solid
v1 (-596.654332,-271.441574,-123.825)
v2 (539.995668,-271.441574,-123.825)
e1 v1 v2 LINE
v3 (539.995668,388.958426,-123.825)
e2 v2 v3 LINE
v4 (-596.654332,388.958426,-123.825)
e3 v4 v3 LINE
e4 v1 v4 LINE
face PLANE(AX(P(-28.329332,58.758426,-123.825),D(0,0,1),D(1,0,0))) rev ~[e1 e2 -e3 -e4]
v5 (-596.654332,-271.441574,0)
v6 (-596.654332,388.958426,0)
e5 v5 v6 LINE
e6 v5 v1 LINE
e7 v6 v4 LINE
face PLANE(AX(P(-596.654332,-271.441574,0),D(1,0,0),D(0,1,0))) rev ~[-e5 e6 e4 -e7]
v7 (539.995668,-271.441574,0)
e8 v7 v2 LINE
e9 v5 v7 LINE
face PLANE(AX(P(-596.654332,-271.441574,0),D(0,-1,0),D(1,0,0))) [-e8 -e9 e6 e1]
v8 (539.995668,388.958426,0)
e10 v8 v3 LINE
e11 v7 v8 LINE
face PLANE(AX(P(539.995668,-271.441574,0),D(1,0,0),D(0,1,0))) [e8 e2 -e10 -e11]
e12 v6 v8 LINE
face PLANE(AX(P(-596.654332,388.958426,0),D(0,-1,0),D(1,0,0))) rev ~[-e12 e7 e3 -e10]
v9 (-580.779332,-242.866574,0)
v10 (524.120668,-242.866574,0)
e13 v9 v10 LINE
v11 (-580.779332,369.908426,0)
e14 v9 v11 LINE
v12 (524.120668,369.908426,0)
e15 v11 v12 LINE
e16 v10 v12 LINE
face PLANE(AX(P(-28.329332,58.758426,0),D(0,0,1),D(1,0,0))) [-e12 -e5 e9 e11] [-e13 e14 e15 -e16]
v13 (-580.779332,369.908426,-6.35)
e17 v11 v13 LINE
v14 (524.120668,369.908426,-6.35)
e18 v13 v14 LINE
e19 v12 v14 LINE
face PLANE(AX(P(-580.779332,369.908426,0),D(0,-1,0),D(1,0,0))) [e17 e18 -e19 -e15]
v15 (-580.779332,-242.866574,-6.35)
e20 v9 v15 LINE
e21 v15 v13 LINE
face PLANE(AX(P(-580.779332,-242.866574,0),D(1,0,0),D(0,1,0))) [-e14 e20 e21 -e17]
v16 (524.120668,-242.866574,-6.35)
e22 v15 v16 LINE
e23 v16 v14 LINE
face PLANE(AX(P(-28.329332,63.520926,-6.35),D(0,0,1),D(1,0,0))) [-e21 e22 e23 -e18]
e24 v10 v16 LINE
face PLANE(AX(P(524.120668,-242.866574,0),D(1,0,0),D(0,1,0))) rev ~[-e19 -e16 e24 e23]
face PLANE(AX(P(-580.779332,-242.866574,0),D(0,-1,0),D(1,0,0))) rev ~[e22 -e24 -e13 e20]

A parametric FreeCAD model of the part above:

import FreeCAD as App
import Part
import Sketcher
from FreeCAD import Vector
Q = App.Units.Quantity

doc = App.newDocument("Part")
body = doc.addObject("PartDesign::Body", "Body")

sketch1 = body.newObject("Sketcher::SketchObject", "Sketch")
sketch1.AttachmentSupport = (doc.getObject("XY_Plane"), [""])
sketch1.MapMode = "FlatFace"
sketch1.addGeometry([
    Part.LineSegment(Vector(-597, 389, 0), Vector(-597, -271, 0)),
    Part.LineSegment(Vector(-597, -271, 0), Vector(540, -271, 0)),
    Part.LineSegment(Vector(540, -271, 0), Vector(540, 389, 0)),
    Part.LineSegment(Vector(540, 389, 0), Vector(-597, 389, 0)),
], False)
sketch1.addConstraint([
    Sketcher.Constraint("Coincident", 0, 2, 1, 1),
    Sketcher.Constraint("Coincident", 1, 2, 2, 1),
    Sketcher.Constraint("Coincident", 2, 2, 3, 1),
    Sketcher.Constraint("Coincident", 3, 2, 0, 1),
    Sketcher.Constraint("Vertical", 0),
    Sketcher.Constraint("Horizontal", 1),
    Sketcher.Constraint("Vertical", 2),
    Sketcher.Constraint("Horizontal", 3),
    Sketcher.Constraint("DistanceY", 0, 2, 0, 1, Q("26 in")),
    Sketcher.Constraint("DistanceX", 1, 1, 1, 2, Q("44.75 in")),
    Sketcher.Constraint("DistanceX", 0, 2, -1, 1, Q("596.654332 mm")),
    Sketcher.Constraint("DistanceY", 0, 2, -1, 1, Q("271.441574 mm")),
])
pad1 = body.newObject("PartDesign::Pad", "Pad")
pad1.Profile = sketch1
pad1.Length = Q("4.875 in")
pad1.Reversed = True

sketch2 = body.newObject("Sketcher::SketchObject", "Sketch001")
sketch2.AttachmentSupport = (doc.getObject("XY_Plane"), [""])
sketch2.MapMode = "FlatFace"
sketch2.addGeometry([
    Part.LineSegment(Vector(-581, 370, 0), Vector(-581, -243, 0)),
    Part.LineSegment(Vector(-581, -243, 0), Vector(524, -243, 0)),
    Part.LineSegment(Vector(524, -243, 0), Vector(524, 370, 0)),
    Part.LineSegment(Vector(524, 370, 0), Vector(-581, 370, 0)),
], False)
sketch2.addConstraint([
    Sketcher.Constraint("Coincident", 0, 2, 1, 1),
    Sketcher.Constraint("Coincident", 1, 2, 2, 1),
    Sketcher.Constraint("Coincident", 2, 2, 3, 1),
    Sketcher.Constraint("Coincident", 3, 2, 0, 1),
    Sketcher.Constraint("Vertical", 0),
    Sketcher.Constraint("Horizontal", 1),
    Sketcher.Constraint("Vertical", 2),
    Sketcher.Constraint("Horizontal", 3),
    Sketcher.Constraint("DistanceX", 1, 1, 1, 2, Q("43.5 in")),
    Sketcher.Constraint("DistanceY", 0, 2, 0, 1, Q("24.125 in")),
    Sketcher.Constraint("DistanceX", 0, 2, -1, 1, Q("580.779332 mm")),
    Sketcher.Constraint("DistanceY", 0, 2, -1, 1, Q("242.866574 mm")),
])
pocket1 = body.newObject("PartDesign::Pocket", "Pocket")
pocket1.Profile = sketch2
pocket1.Length = Q("0.25 in")

doc.recompute()
